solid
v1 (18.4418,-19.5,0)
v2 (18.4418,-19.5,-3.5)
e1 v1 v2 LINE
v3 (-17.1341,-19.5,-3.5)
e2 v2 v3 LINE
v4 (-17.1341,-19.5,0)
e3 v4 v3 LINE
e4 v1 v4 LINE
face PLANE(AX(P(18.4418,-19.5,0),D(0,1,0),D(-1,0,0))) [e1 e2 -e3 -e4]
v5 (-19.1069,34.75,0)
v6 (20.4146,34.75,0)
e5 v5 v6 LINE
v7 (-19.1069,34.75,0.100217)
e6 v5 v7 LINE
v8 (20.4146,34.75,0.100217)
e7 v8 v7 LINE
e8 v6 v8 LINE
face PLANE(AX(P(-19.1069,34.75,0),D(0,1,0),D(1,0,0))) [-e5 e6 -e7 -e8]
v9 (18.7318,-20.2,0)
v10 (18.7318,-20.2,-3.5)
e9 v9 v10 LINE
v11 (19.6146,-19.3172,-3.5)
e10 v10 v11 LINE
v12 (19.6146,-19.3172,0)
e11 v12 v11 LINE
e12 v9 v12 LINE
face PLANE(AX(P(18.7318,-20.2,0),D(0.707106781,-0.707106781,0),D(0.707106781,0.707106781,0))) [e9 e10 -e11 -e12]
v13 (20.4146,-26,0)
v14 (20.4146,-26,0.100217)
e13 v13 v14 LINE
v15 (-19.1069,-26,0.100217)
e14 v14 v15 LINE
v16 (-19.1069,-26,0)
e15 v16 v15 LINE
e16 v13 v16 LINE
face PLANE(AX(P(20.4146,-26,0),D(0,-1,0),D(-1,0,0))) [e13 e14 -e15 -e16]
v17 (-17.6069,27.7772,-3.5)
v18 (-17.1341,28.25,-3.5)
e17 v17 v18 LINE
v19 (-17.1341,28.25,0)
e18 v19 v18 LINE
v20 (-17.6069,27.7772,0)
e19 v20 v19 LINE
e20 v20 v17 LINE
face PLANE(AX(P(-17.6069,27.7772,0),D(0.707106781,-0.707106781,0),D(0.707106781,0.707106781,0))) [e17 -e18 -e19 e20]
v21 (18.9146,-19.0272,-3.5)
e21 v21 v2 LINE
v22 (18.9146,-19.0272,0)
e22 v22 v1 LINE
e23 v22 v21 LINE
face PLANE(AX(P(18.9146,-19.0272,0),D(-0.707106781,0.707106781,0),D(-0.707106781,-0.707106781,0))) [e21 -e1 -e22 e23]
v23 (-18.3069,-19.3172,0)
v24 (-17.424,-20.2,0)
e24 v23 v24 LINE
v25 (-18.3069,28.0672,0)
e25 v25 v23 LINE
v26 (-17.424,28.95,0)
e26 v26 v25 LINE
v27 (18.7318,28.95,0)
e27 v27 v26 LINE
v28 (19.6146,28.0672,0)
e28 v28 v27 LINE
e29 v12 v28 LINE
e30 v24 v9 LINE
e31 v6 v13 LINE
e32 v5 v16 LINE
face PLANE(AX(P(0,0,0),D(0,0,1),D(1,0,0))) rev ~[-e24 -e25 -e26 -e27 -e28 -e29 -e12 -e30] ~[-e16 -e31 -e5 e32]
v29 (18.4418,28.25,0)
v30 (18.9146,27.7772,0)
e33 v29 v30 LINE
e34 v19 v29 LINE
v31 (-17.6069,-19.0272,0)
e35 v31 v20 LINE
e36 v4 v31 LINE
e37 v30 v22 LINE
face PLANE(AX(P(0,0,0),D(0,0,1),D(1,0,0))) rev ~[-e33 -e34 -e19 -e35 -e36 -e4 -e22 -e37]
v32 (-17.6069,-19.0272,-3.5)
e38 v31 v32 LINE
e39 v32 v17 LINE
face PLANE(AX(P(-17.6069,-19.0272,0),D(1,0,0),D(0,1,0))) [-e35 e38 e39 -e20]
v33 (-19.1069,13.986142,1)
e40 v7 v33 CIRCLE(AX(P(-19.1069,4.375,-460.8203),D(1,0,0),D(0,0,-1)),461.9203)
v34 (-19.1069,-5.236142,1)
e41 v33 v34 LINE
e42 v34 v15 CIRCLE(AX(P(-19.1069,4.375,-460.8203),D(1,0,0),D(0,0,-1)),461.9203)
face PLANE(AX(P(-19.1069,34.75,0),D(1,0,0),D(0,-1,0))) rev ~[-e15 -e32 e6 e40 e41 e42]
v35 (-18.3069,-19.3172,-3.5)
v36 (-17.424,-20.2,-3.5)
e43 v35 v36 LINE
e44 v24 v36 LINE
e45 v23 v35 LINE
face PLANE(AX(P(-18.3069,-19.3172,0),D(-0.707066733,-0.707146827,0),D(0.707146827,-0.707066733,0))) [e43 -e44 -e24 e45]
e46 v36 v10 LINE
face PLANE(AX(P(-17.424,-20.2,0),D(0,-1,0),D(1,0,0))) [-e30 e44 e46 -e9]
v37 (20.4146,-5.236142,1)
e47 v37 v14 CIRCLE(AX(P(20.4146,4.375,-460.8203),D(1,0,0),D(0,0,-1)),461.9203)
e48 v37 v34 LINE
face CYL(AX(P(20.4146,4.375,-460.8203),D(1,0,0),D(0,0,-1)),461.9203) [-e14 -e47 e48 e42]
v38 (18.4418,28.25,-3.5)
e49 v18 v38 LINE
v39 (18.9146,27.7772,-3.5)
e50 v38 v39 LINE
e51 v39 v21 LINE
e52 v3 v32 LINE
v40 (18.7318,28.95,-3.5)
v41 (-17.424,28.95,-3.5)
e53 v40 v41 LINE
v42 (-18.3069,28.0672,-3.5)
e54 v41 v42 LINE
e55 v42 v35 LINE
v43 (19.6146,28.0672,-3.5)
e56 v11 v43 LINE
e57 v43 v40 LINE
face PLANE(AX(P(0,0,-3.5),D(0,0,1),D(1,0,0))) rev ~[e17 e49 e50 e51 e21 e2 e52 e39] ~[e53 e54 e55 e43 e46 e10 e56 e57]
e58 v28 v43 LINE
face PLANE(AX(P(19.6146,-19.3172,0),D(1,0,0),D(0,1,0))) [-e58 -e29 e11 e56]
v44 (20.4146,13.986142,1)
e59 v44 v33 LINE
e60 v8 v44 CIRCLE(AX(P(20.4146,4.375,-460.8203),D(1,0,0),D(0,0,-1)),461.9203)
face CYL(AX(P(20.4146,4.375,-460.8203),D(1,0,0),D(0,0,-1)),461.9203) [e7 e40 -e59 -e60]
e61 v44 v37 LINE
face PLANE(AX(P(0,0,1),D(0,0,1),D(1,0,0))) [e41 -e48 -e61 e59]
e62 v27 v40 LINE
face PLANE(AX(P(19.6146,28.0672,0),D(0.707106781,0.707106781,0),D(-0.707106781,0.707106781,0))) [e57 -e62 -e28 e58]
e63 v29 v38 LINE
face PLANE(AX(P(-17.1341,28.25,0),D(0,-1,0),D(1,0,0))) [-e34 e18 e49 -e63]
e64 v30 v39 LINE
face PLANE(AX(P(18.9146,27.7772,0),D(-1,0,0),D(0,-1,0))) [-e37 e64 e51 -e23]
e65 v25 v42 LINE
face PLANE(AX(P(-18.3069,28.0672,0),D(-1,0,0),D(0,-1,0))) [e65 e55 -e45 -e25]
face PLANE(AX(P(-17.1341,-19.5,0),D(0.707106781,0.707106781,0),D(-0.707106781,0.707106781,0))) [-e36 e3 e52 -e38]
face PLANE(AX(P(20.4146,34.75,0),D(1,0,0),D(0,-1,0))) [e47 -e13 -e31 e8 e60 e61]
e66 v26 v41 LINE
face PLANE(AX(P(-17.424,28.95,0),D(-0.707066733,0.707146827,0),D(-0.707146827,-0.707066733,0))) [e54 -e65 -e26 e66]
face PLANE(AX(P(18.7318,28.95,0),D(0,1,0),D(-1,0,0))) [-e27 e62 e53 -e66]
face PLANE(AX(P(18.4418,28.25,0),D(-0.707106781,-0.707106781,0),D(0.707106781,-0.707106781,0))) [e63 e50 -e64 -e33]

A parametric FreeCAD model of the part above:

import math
import FreeCAD as App
import Part
import Sketcher
Q = App.Units.Quantity

doc = App.newDocument("Part")
body = doc.addObject("PartDesign::Body", "Body")

# Sketch on XY plane
sketch1 = doc.addObject("Sketcher::SketchObject", "Sketch")
body.addObject(sketch1)
sketch1.AttachmentSupport = (doc.XY_Plane, [""])
sketch1.MapMode = "FlatFace"
sketch1.addGeometry(Part.LineSegment(App.Vector(19.6146, 28.0672, 0), App.Vector(18.7318, 28.95, 0)), False)
sketch1.addGeometry(Part.LineSegment(App.Vector(18.7318, 28.95, 0), App.Vector(-17.424, 28.95, 0)), False)
sketch1.addGeometry(Part.LineSegment(App.Vector(-17.424, 28.95, 0), App.Vector(-18.3069, 28.0672, 0)), False)
sketch1.addGeometry(Part.LineSegment(App.Vector(-18.3069, 28.0672, 0), App.Vector(-18.3069, -19.3172, 0)), False)
sketch1.addGeometry(Part.LineSegment(App.Vector(-18.3069, -19.3172, 0), App.Vector(-17.424, -20.2, 0)), False)
sketch1.addGeometry(Part.LineSegment(App.Vector(-17.424, -20.2, 0), App.Vector(18.7318, -20.2, 0)), False)
sketch1.addGeometry(Part.LineSegment(App.Vector(18.7318, -20.2, 0), App.Vector(19.6146, -19.3172, 0)), False)
sketch1.addGeometry(Part.LineSegment(App.Vector(19.6146, -19.3172, 0), App.Vector(19.6146, 28.0672, 0)), False)
sketch1.addGeometry(Part.LineSegment(App.Vector(-17.6069, 27.7772, 0), App.Vector(-17.1341, 28.25, 0)), False)
sketch1.addGeometry(Part.LineSegment(App.Vector(-17.1341, 28.25, 0), App.Vector(18.4418, 28.25, 0)), False)
sketch1.addGeometry(Part.LineSegment(App.Vector(18.4418, 28.25, 0), App.Vector(18.9146, 27.7772, 0)), False)
sketch1.addGeometry(Part.LineSegment(App.Vector(18.9146, 27.7772, 0), App.Vector(18.9146, -19.0272, 0)), False)
sketch1.addGeometry(Part.LineSegment(App.Vector(18.9146, -19.0272, 0), App.Vector(18.4418, -19.5, 0)), False)
sketch1.addGeometry(Part.LineSegment(App.Vector(18.4418, -19.5, 0), App.Vector(-17.1341, -19.5, 0)), False)
sketch1.addGeometry(Part.LineSegment(App.Vector(-17.1341, -19.5, 0), App.Vector(-17.6069, -19.0272, 0)), False)
sketch1.addGeometry(Part.LineSegment(App.Vector(-17.6069, -19.0272, 0), App.Vector(-17.6069, 27.7772, 0)), False)
sketch1.addConstraint(Sketcher.Constraint("Coincident", 0, 2, 1, 1))
sketch1.addConstraint(Sketcher.Constraint("Coincident", 1, 2, 2, 1))
sketch1.addConstraint(Sketcher.Constraint("Coincident", 2, 2, 3, 1))
sketch1.addConstraint(Sketcher.Constraint("Coincident", 3, 2, 4, 1))
sketch1.addConstraint(Sketcher.Constraint("Coincident", 4, 2, 5, 1))
sketch1.addConstraint(Sketcher.Constraint("Coincident", 5, 2, 6, 1))
sketch1.addConstraint(Sketcher.Constraint("Coincident", 6, 2, 7, 1))
sketch1.addConstraint(Sketcher.Constraint("Coincident", 7, 2, 0, 1))
sketch1.addConstraint(Sketcher.Constraint("Coincident", 8, 2, 9, 1))
sketch1.addConstraint(Sketcher.Constraint("Coincident", 9, 2, 10, 1))
sketch1.addConstraint(Sketcher.Constraint("Coincident", 10, 2, 11, 1))
sketch1.addConstraint(Sketcher.Constraint("Coincident", 11, 2, 12, 1))
sketch1.addConstraint(Sketcher.Constraint("Coincident", 12, 2, 13, 1))
sketch1.addConstraint(Sketcher.Constraint("Coincident", 13, 2, 14, 1))
sketch1.addConstraint(Sketcher.Constraint("Coincident", 14, 2, 15, 1))
sketch1.addConstraint(Sketcher.Constraint("Coincident", 15, 2, 8, 1))
sketch1.addConstraint(Sketcher.Constraint("Horizontal", 1))
sketch1.addConstraint(Sketcher.Constraint("Vertical", 3))
sketch1.addConstraint(Sketcher.Constraint("Horizontal", 5))
sketch1.addConstraint(Sketcher.Constraint("Vertical", 7))
sketch1.addConstraint(Sketcher.Constraint("Horizontal", 9))
sketch1.addConstraint(Sketcher.Constraint("Vertical", 11))
sketch1.addConstraint(Sketcher.Constraint("Horizontal", 13))
sketch1.addConstraint(Sketcher.Constraint("Vertical", 15))
sketch1.addConstraint(Sketcher.Constraint("Perpendicular", 0, 2))
sketch1.addConstraint(Sketcher.Constraint("Perpendicular", 2, 4))
sketch1.addConstraint(Sketcher.Constraint("Perpendicular", 4, 6))
sketch1.addConstraint(Sketcher.Constraint("Parallel", 6, 8))
sketch1.addConstraint(Sketcher.Constraint("Perpendicular", 8, 10))
sketch1.addConstraint(Sketcher.Constraint("Perpendicular", 10, 12))
sketch1.addConstraint(Sketcher.Constraint("Perpendicular", 12, 14))
sketch1.addConstraint(Sketcher.Constraint("Horizontal", 3, 2, 6, 2))
sketch1.addConstraint(Sketcher.Constraint("Horizontal", 2, 2, 7, 2))
sketch1.addConstraint(Sketcher.Constraint("Horizontal", 11, 2, 14, 2))
sketch1.addConstraint(Sketcher.Constraint("Horizontal", 10, 2, 15, 2))
sketch1.addConstraint(Sketcher.Constraint("Vertical", 1, 2, 4, 2))
sketch1.addConstraint(Sketcher.Constraint("Vertical", 0, 2, 5, 2))
sketch1.addConstraint(Sketcher.Constraint("Vertical", 9, 2, 12, 2))
sketch1.addConstraint(Sketcher.Constraint("DistanceY", 8, 2, 1, 2, Q("0.7 mm")))
sketch1.addConstraint(Sketcher.Constraint("DistanceX", 10, 2, 7, 2, Q("0.7 mm")))
sketch1.addConstraint(Sketcher.Constraint("DistanceY", 5, 2, 12, 2, Q("0.7 mm")))
sketch1.addConstraint(Sketcher.Constraint("DistanceX", 3, 2, 14, 2, Q("0.7 mm")))
sketch1.addConstraint(Sketcher.Constraint("DistanceY", 4, 2, -1, 1, Q("20.2 mm")))
sketch1.addConstraint(Sketcher.Constraint("DistanceX", 9, 1, 9, 2, Q("35.576 mm")))
sketch1.addConstraint(Sketcher.Constraint("DistanceY", -1, 1, 0, 2, Q("28.95 mm")))
sketch1.addConstraint(Sketcher.Constraint("DistanceX", 1, 2, 8, 2, Q("0.29 mm")))
sketch1.addConstraint(Sketcher.Constraint("DistanceY", 3, 2, 3, 1, Q("47.3844 mm")))
sketch1.addConstraint(Sketcher.Constraint("DistanceX", 1, 2, -1, 1, Q("17.424 mm")))
pad1 = doc.addObject("PartDesign::Pad", "Pad")
body.addObject(pad1)
pad1.Profile = sketch1
pad1.Length = 3.5
pad1.Reversed = True

# Sketch on XY plane
sketch2 = doc.addObject("Sketcher::SketchObject", "Sketch001")
body.addObject(sketch2)
sketch2.AttachmentSupport = (doc.XY_Plane, [""])
sketch2.MapMode = "FlatFace"
sketch2.addGeometry(Part.LineSegment(App.Vector(20.4146, -26, 0), App.Vector(20.4146, 34.75, 0)), False)
sketch2.addGeometry(Part.LineSegment(App.Vector(20.4146, 34.75, 0), App.Vector(-19.1069, 34.75, 0)), False)
sketch2.addGeometry(Part.LineSegment(App.Vector(-19.1069, 34.75, 0), App.Vector(-19.1069, -26, 0)), False)
sketch2.addGeometry(Part.LineSegment(App.Vector(-19.1069, -26, 0), App.Vector(20.4146, -26, 0)), False)
sketch2.addConstraint(Sketcher.Constraint("Coincident", 0, 2, 1, 1))
sketch2.addConstraint(Sketcher.Constraint("Coincident", 1, 2, 2, 1))
sketch2.addConstraint(Sketcher.Constraint("Coincident", 2, 2, 3, 1))
sketch2.addConstraint(Sketcher.Constraint("Coincident", 3, 2, 0, 1))
sketch2.addConstraint(Sketcher.Constraint("Vertical", 0))
sketch2.addConstraint(Sketcher.Constraint("Horizontal", 1))
sketch2.addConstraint(Sketcher.Constraint("Vertical", 2))
sketch2.addConstraint(Sketcher.Constraint("Horizontal", 3))
sketch2.addConstraint(Sketcher.Constraint("DistanceY", 2, 2, -1, 1, Q("26 mm")))
sketch2.addConstraint(Sketcher.Constraint("DistanceY", 0, 1, 0, 2, Q("60.75 mm")))
sketch2.addConstraint(Sketcher.Constraint("DistanceX", 1, 2, 1, 1, Q("39.5215 mm")))
sketch2.addConstraint(Sketcher.Constraint("DistanceX", 1, 2, -1, 1, Q("19.107 mm")))
pad2 = doc.addObject("PartDesign::Pad", "Pad001")
body.addObject(pad2)
pad2.Profile = sketch2
pad2.Length = 1

# Sketch on YZ plane
sketch3 = doc.addObject("Sketcher::SketchObject", "Sketch002")
body.addObject(sketch3)
sketch3.AttachmentSupport = (doc.YZ_Plane, [""])
sketch3.MapMode = "FlatFace"
sketch3.AttachmentOffset = App.Placement(App.Vector(0, 0, 20.4146), App.Rotation())
sketch3.addGeometry(Part.LineSegment(App.Vector(34.75, 0.100217, 0), App.Vector(34.75, 1, 0)), False)
sketch3.addGeometry(Part.LineSegment(App.Vector(34.75, 1, 0), App.Vector(13.986142, 1, 0)), False)
sketch3.addGeometry(Part.ArcOfCircle(Part.Circle(App.Vector(4.375, -460.8203, 0), App.Vector(0, 0, 1), 461.9203), math.radians(86.229618), math.radians(88.807765)), False)
sketch3.addGeometry(Part.ArcOfCircle(Part.Circle(App.Vector(4.375, -460.8203, 0), App.Vector(0, 0, 1), 461.9203), math.radians(91.192235), math.radians(93.770382)), False)
sketch3.addGeometry(Part.LineSegment(App.Vector(-5.236142, 1, 0), App.Vector(-26, 1, 0)), False)
sketch3.addGeometry(Part.LineSegment(App.Vector(-26, 1, 0), App.Vector(-26, 0.100217, 0)), False)
sketch3.addConstraint(Sketcher.Constraint("Coincident", 0, 2, 1, 1))
sketch3.addConstraint(Sketcher.Constraint("Coincident", 1, 2, 2, 2))
sketch3.addConstraint(Sketcher.Constraint("Coincident", 2, 1, 0, 1))
sketch3.addConstraint(Sketcher.Constraint("Coincident", 3, 1, 4, 1))
sketch3.addConstraint(Sketcher.Constraint("Coincident", 4, 2, 5, 1))
sketch3.addConstraint(Sketcher.Constraint("Coincident", 5, 2, 3, 2))
sketch3.addConstraint(Sketcher.Constraint("Vertical", 0))
sketch3.addConstraint(Sketcher.Constraint("Horizontal", 1))
sketch3.addConstraint(Sketcher.Constraint("Horizontal", 4))
sketch3.addConstraint(Sketcher.Constraint("Vertical", 5))
sketch3.addConstraint(Sketcher.Constraint("Coincident", 3, 3, 2, 3))
sketch3.addConstraint(Sketcher.Constraint("Equal", 2, 3))
sketch3.addConstraint(Sketcher.Constraint("Horizontal", 1, 2, 3, 1))
sketch3.addConstraint(Sketcher.Constraint("Horizontal", 2, 1, 5, 2))
sketch3.addConstraint(Sketcher.Constraint("DistanceY", -1, 1, 0, 2, Q("1 mm")))
sketch3.addConstraint(Sketcher.Constraint("DistanceX", 4, 2, -1, 1, Q("26 mm")))
sketch3.addConstraint(Sketcher.Constraint("DistanceY", -1, 1, 5, 2, Q("0.1002 mm")))
sketch3.addConstraint(Sketcher.Constraint("Radius", 2, Q("461.9203 mm")))
sketch3.addConstraint(Sketcher.Constraint("DistanceX", -1, 1, 0, 2, Q("34.75 mm")))
pocket1 = doc.addObject("PartDesign::Pocket", "Pocket")
body.addObject(pocket1)
pocket1.Profile = sketch3
pocket1.Type = "ThroughAll"

doc.recompute()
